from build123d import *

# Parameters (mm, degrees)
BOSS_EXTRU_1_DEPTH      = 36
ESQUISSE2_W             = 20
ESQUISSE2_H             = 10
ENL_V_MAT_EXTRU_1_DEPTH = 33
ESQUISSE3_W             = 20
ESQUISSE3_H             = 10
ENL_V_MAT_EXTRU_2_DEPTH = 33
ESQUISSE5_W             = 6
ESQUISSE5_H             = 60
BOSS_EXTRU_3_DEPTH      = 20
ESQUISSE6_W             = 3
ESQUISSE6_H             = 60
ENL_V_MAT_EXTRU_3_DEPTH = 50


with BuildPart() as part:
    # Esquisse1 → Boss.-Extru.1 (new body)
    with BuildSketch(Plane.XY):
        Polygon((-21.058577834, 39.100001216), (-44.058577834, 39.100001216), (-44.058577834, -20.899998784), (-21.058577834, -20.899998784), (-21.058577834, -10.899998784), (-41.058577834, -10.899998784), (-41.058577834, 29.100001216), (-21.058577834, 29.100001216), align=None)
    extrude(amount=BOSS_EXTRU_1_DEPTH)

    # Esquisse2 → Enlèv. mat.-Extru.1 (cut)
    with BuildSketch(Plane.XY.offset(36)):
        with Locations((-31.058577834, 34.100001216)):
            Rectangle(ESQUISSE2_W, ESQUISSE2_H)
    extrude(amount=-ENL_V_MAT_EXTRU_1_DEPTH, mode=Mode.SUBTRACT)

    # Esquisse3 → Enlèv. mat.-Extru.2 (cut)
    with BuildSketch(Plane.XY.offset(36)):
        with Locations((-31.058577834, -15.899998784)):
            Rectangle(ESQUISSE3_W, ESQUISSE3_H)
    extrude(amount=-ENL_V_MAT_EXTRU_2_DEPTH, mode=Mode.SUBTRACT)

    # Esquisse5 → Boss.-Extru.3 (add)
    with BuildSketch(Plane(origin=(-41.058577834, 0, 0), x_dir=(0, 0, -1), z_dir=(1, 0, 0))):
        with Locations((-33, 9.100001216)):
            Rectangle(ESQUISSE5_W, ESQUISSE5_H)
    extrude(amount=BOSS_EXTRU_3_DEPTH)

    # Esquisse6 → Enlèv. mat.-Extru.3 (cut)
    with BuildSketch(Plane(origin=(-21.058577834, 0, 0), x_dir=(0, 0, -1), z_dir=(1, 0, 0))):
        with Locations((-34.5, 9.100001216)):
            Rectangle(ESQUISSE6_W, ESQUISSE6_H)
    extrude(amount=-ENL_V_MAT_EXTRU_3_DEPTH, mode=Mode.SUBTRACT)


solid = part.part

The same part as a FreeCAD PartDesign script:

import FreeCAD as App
import Part
import Sketcher
from FreeCAD import Vector
Q = App.Units.Quantity

doc = App.newDocument("Part")
params = doc.addObject("Spreadsheet::Sheet", "Params")
for row, (alias, value) in enumerate([
    ("sketch1_width", "23 mm"),
    ("sketch1_width2", "20 mm"),
    ("sketch1_height", "60 mm"),
    ("sketch1_height2", "10 mm"),
    ("pad1_length", "36 mm"),
    ("sketch2_width", "20 mm"),
    ("sketch2_height", "10 mm"),
    ("pocket1_length", "33 mm"),
    ("sketch3_width", "20 mm"),
    ("sketch3_height", "10 mm"),
    ("pocket2_length", "33 mm"),
    ("sketch4_width", "60 mm"),
    ("sketch4_height", "6 mm"),
    ("pad2_length", "20 mm"),
    ("sketch5_width", "60 mm"),
    ("sketch5_height", "3 mm"),
    ("pocket3_length", "50 mm"),
], start=1):
    params.set(f"A{row}", alias)
    params.set(f"B{row}", "=" + value)
    params.setAlias(f"B{row}", alias)

body = doc.addObject("PartDesign::Body", "Body")

# Sketch on XY plane
sketch1 = body.newObject("Sketcher::SketchObject", "Sketch")
sketch1.AttachmentSupport = (doc.getObject("XY_Plane"), [""])
sketch1.MapMode = "FlatFace"
sketch1.addGeometry([
    Part.LineSegment(Vector(-21, 39, 0), Vector(-44, 39, 0)),  # 0
    Part.LineSegment(Vector(-44, 39, 0), Vector(-44, -21, 0)),  # 1
    Part.LineSegment(Vector(-44, -21, 0), Vector(-21, -21, 0)),  # 2
    Part.LineSegment(Vector(-21, -21, 0), Vector(-21, -11, 0)),  # 3
    Part.LineSegment(Vector(-21, -11, 0), Vector(-41, -11, 0)),  # 4
    Part.LineSegment(Vector(-41, -11, 0), Vector(-41, 29, 0)),  # 5
    Part.LineSegment(Vector(-41, 29, 0), Vector(-21, 29, 0)),  # 6
    Part.LineSegment(Vector(-21, 29, 0), Vector(-21, 39, 0)),  # 7
], False)
sketch1.addConstraint([
    Sketcher.Constraint("Coincident", 0, 2, 1, 1),
    Sketcher.Constraint("Coincident", 1, 2, 2, 1),
    Sketcher.Constraint("Coincident", 2, 2, 3, 1),
    Sketcher.Constraint("Coincident", 3, 2, 4, 1),
    Sketcher.Constraint("Coincident", 4, 2, 5, 1),
    Sketcher.Constraint("Coincident", 5, 2, 6, 1),
    Sketcher.Constraint("Coincident", 6, 2, 7, 1),
    Sketcher.Constraint("Coincident", 7, 2, 0, 1),
    Sketcher.Constraint("Horizontal", 0),
    Sketcher.Constraint("Vertical", 1),
    Sketcher.Constraint("Horizontal", 2),
    Sketcher.Constraint("Vertical", 3),
    Sketcher.Constraint("Horizontal", 4),
    Sketcher.Constraint("Vertical", 5),
    Sketcher.Constraint("Horizontal", 6),
    Sketcher.Constraint("Vertical", 7),
    Sketcher.Constraint("Vertical", 3, 2, 6, 2),
    Sketcher.Constraint("Equal", 3, 7),
    Sketcher.Constraint("DistanceX", 0, 2, 0, 1, Q("23 mm")),
    Sketcher.Constraint("DistanceX", 4, 2, 4, 1, Q("20 mm")),
    Sketcher.Constraint("DistanceY", 1, 2, 1, 1, Q("60 mm")),
    Sketcher.Constraint("DistanceY", 3, 1, 3, 2, Q("10 mm")),
    Sketcher.Constraint("DistanceY", -1, 1, 0, 2, Q("39.100001 mm")),
    Sketcher.Constraint("DistanceX", 0, 2, -1, 1, Q("44.058578 mm")),
])
sketch1.setExpression("Constraints[18]", "Params.sketch1_width")
sketch1.setExpression("Constraints[19]", "Params.sketch1_width2")
sketch1.setExpression("Constraints[20]", "Params.sketch1_height")
sketch1.setExpression("Constraints[21]", "Params.sketch1_height2")
pad1 = body.newObject("PartDesign::Pad", "Pad")
pad1.Profile = sketch1
pad1.setExpression("Length", "Params.pad1_length")

# Sketch on XY plane
sketch2 = body.newObject("Sketcher::SketchObject", "Sketch001")
sketch2.AttachmentSupport = (doc.getObject("XY_Plane"), [""])
sketch2.MapMode = "FlatFace"
sketch2.AttachmentOffset = App.Placement(Vector(0, 0, 36), App.Rotation())
sketch2.addGeometry([
    Part.LineSegment(Vector(-41, 39, 0), Vector(-41, 29, 0)),
    Part.LineSegment(Vector(-41, 29, 0), Vector(-21, 29, 0)),
    Part.LineSegment(Vector(-21, 29, 0), Vector(-21, 39, 0)),
    Part.LineSegment(Vector(-21, 39, 0), Vector(-41, 39, 0)),
], False)
sketch2.addConstraint([
    Sketcher.Constraint("Coincident", 0, 2, 1, 1),
    Sketcher.Constraint("Coincident", 1, 2, 2, 1),
    Sketcher.Constraint("Coincident", 2, 2, 3, 1),
    Sketcher.Constraint("Coincident", 3, 2, 0, 1),
    Sketcher.Constraint("Vertical", 0),
    Sketcher.Constraint("Horizontal", 1),
    Sketcher.Constraint("Vertical", 2),
    Sketcher.Constraint("Horizontal", 3),
    Sketcher.Constraint("DistanceX", 1, 1, 1, 2, Q("20 mm")),
    Sketcher.Constraint("DistanceY", 0, 2, 0, 1, Q("10 mm")),
    Sketcher.Constraint("DistanceY", -1, 1, 0, 2, Q("29.100001 mm")),
    Sketcher.Constraint("DistanceX", 0, 2, -1, 1, Q("41.058578 mm")),
])
sketch2.setExpression("Constraints[8]", "Params.sketch2_width")
sketch2.setExpression("Constraints[9]", "Params.sketch2_height")
pocket1 = body.newObject("PartDesign::Pocket", "Pocket")
pocket1.Profile = sketch2
pocket1.setExpression("Length", "Params.pocket1_length")

# Sketch on XY plane
sketch3 = body.newObject("Sketcher::SketchObject", "Sketch002")
sketch3.AttachmentSupport = (doc.getObject("XY_Plane"), [""])
sketch3.MapMode = "FlatFace"
sketch3.AttachmentOffset = App.Placement(Vector(0, 0, 36), App.Rotation())
sketch3.addGeometry([
    Part.LineSegment(Vector(-41, -11, 0), Vector(-41, -21, 0)),
    Part.LineSegment(Vector(-41, -21, 0), Vector(-21, -21, 0)),
    Part.LineSegment(Vector(-21, -21, 0), Vector(-21, -11, 0)),
    Part.LineSegment(Vector(-21, -11, 0), Vector(-41, -11, 0)),
], False)
sketch3.addConstraint([
    Sketcher.Constraint("Coincident", 0, 2, 1, 1),
    Sketcher.Constraint("Coincident", 1, 2, 2, 1),
    Sketcher.Constraint("Coincident", 2, 2, 3, 1),
    Sketcher.Constraint("Coincident", 3, 2, 0, 1),
    Sketcher.Constraint("Vertical", 0),
    Sketcher.Constraint("Horizontal", 1),
    Sketcher.Constraint("Vertical", 2),
    Sketcher.Constraint("Horizontal", 3),
    Sketcher.Constraint("DistanceX", 1, 1, 1, 2, Q("20 mm")),
    Sketcher.Constraint("DistanceY", 0, 2, 0, 1, Q("10 mm")),
    Sketcher.Constraint("DistanceY", 0, 2, -1, 1, Q("20.899999 mm")),
    Sketcher.Constraint("DistanceX", 0, 2, -1, 1, Q("41.058578 mm")),
])
sketch3.setExpression("Constraints[8]", "Params.sketch3_width")
sketch3.setExpression("Constraints[9]", "Params.sketch3_height")
pocket2 = body.newObject("PartDesign::Pocket", "Pocket001")
pocket2.Profile = sketch3
pocket2.setExpression("Length", "Params.pocket2_length")

# Sketch on YZ plane
sketch4 = body.newObject("Sketcher::SketchObject", "Sketch003")
sketch4.AttachmentSupport = (doc.getObject("YZ_Plane"), [""])
sketch4.MapMode = "FlatFace"
sketch4.AttachmentOffset = App.Placement(Vector(0, 0, -41.058578), App.Rotation())
sketch4.addGeometry([
    Part.LineSegment(Vector(39, 36, 0), Vector(-21, 36, 0)),
    Part.LineSegment(Vector(-21, 36, 0), Vector(-21, 30, 0)),
    Part.LineSegment(Vector(-21, 30, 0), Vector(39, 30, 0)),
    Part.LineSegment(Vector(39, 30, 0), Vector(39, 36, 0)),
], False)
sketch4.addConstraint([
    Sketcher.Constraint("Coincident", 0, 2, 1, 1),
    Sketcher.Constraint("Coincident", 1, 2, 2, 1),
    Sketcher.Constraint("Coincident", 2, 2, 3, 1),
    Sketcher.Constraint("Coincident", 3, 2, 0, 1),
    Sketcher.Constraint("Horizontal", 0),
    Sketcher.Constraint("Vertical", 1),
    Sketcher.Constraint("Horizontal", 2),
    Sketcher.Constraint("Vertical", 3),
    Sketcher.Constraint("DistanceX", 0, 2, 0, 1, Q("60 mm")),
    Sketcher.Constraint("DistanceY", 1, 2, 1, 1, Q("6 mm")),
    Sketcher.Constraint("DistanceY", -1, 1, 0, 2, Q("36 mm")),
    Sketcher.Constraint("DistanceX", 0, 2, -1, 1, Q("20.899999 mm")),
])
sketch4.setExpression("Constraints[8]", "Params.sketch4_width")
sketch4.setExpression("Constraints[9]", "Params.sketch4_height")
pad2 = body.newObject("PartDesign::Pad", "Pad001")
pad2.Profile = sketch4
pad2.setExpression("Length", "Params.pad2_length")

# Sketch on YZ plane
sketch5 = body.newObject("Sketcher::SketchObject", "Sketch004")
sketch5.AttachmentSupport = (doc.getObject("YZ_Plane"), [""])
sketch5.MapMode = "FlatFace"
sketch5.AttachmentOffset = App.Placement(Vector(0, 0, -21.058578), App.Rotation())
sketch5.addGeometry([
    Part.LineSegment(Vector(39.1, 36, 0), Vector(-20.9, 36, 0)),
    Part.LineSegment(Vector(-20.9, 36, 0), Vector(-20.9, 33, 0)),
    Part.LineSegment(Vector(-20.9, 33, 0), Vector(39.1, 33, 0)),
    Part.LineSegment(Vector(39.1, 33, 0), Vector(39.1, 36, 0)),
], False)
sketch5.addConstraint([
    Sketcher.Constraint("Coincident", 0, 2, 1, 1),
    Sketcher.Constraint("Coincident", 1, 2, 2, 1),
    Sketcher.Constraint("Coincident", 2, 2, 3, 1),
    Sketcher.Constraint("Coincident", 3, 2, 0, 1),
    Sketcher.Constraint("Horizontal", 0),
    Sketcher.Constraint("Vertical", 1),
    Sketcher.Constraint("Horizontal", 2),
    Sketcher.Constraint("Vertical", 3),
    Sketcher.Constraint("DistanceX", 0, 2, 0, 1, Q("60 mm")),
    Sketcher.Constraint("DistanceY", 1, 2, 1, 1, Q("3 mm")),
    Sketcher.Constraint("DistanceY", -1, 1, 0, 2, Q("36 mm")),
    Sketcher.Constraint("DistanceX", 0, 2, -1, 1, Q("20.899999 mm")),
])
sketch5.setExpression("Constraints[8]", "Params.sketch5_width")
sketch5.setExpression("Constraints[9]", "Params.sketch5_height")
pocket3 = body.newObject("PartDesign::Pocket", "Pocket002")
pocket3.Profile = sketch5
pocket3.setExpression("Length", "Params.pocket3_length")

doc.recompute()
